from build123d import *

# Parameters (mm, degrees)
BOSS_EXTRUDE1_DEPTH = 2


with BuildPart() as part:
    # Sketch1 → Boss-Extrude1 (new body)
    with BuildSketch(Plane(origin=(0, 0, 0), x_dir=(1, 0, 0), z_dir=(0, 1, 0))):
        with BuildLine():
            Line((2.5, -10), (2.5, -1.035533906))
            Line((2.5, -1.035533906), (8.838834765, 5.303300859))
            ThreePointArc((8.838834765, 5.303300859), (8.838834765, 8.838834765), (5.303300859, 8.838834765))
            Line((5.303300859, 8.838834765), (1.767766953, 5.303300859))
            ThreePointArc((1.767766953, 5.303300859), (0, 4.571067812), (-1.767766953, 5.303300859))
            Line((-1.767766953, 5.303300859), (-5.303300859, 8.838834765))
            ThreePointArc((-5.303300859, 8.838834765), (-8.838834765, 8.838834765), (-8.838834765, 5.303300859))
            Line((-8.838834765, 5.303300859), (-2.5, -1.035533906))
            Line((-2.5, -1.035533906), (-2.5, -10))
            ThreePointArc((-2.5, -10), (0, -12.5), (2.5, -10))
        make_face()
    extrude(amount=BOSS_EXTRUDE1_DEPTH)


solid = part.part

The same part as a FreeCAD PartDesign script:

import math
import FreeCAD as App
import Part
import Sketcher

doc = App.newDocument("Part")
params = doc.addObject("Spreadsheet::Sheet", "Params")
for row, (alias, value) in enumerate([
    ("sketch1_radius", "2.5 mm"),
    ("pad1_length", "2 mm"),
], start=1):
    params.set(f"A{row}", alias)
    params.set(f"B{row}", "=" + value)
    params.setAlias(f"B{row}", alias)

body = doc.addObject("PartDesign::Body", "Body")

# Sketch on XZ plane
sketch1 = body.newObject("Sketcher::SketchObject", "Sketch")
sketch1.AttachmentSupport = (doc.getObject("XZ_Plane"), [""])
sketch1.MapMode = "FlatFace"
sketch1.addGeometry([
    Part.LineSegment(App.Vector(2.5, 10, 0), App.Vector(2.5, 1, 0)),  # 0
    Part.LineSegment(App.Vector(2.5, 1, 0), App.Vector(8.8, -5.3, 0)),  # 1
    Part.ArcOfCircle(Part.Circle(App.Vector(7.1, -7.1, 0), App.Vector(0, 0, 1), 2.5), math.radians(-135), math.radians(45)),  # 2
    Part.LineSegment(App.Vector(5.3, -8.8, 0), App.Vector(1.8, -5.3, 0)),  # 3
    Part.ArcOfCircle(Part.Circle(App.Vector(0, -7.1, 0), App.Vector(0, 0, 1), 2.5), math.radians(45), math.radians(135)),  # 4
    Part.LineSegment(App.Vector(-1.8, -5.3, 0), App.Vector(-5.3, -8.8, 0)),  # 5
    Part.ArcOfCircle(Part.Circle(App.Vector(-7.1, -7.1, 0), App.Vector(0, 0, 1), 2.5), math.radians(135), math.radians(315)),  # 6
    Part.LineSegment(App.Vector(-8.8, -5.3, 0), App.Vector(-2.5, 1, 0)),  # 7
    Part.LineSegment(App.Vector(-2.5, 1, 0), App.Vector(-2.5, 10, 0)),  # 8
    Part.ArcOfCircle(Part.Circle(App.Vector(0, 10, 0), App.Vector(0, 0, 1), 2.5), math.radians(0), math.radians(180)),  # 9
], False)
sketch1.addConstraint([
    Sketcher.Constraint("Coincident", 0, 2, 1, 1),
    Sketcher.Constraint("Tangent", 1, 2, 2, 2),
    Sketcher.Constraint("Tangent", 2, 1, 3, 1),
    Sketcher.Constraint("Tangent", 3, 2, 4, 1),
    Sketcher.Constraint("Tangent", 4, 2, 5, 1),
    Sketcher.Constraint("Tangent", 5, 2, 6, 2),
    Sketcher.Constraint("Tangent", 6, 1, 7, 1),
    Sketcher.Constraint("Coincident", 7, 2, 8, 1),
    Sketcher.Constraint("Tangent", 8, 2, 9, 2),
    Sketcher.Constraint("Tangent", 9, 1, 0, 1),
    Sketcher.Constraint("Vertical", 0),
    Sketcher.Constraint("Vertical", 8),
    Sketcher.Constraint("Equal", 2, 4),
    Sketcher.Constraint("Equal", 4, 6),
    Sketcher.Constraint("Equal", 6, 9),
    Sketcher.Constraint("Symmetric", 2, 3, 6, 3, -2),
    Sketcher.Constraint("Symmetric", 0, 2, 7, 2, -2),
    Sketcher.Constraint("PointOnObject", 4, 3, -2),
    Sketcher.Constraint("Parallel", 1, 3),
    Sketcher.Constraint("Perpendicular", 3, 5),
    Sketcher.Constraint("Horizontal", 2, 3, 4, 3),
    Sketcher.Constraint("Radius", 2, 2.5),
    Sketcher.Constraint("DistanceY", -1, 1, 9, 3, 10.0),
    Sketcher.Constraint("DistanceY", 1, 2, -1, 1, 5.303301),
])
sketch1.setExpression("Constraints[21]", "Params.sketch1_radius")
pad1 = body.newObject("PartDesign::Pad", "Pad")
pad1.Profile = sketch1
pad1.setExpression("Length", "Params.pad1_length")
pad1.Reversed = True

doc.recompute()
